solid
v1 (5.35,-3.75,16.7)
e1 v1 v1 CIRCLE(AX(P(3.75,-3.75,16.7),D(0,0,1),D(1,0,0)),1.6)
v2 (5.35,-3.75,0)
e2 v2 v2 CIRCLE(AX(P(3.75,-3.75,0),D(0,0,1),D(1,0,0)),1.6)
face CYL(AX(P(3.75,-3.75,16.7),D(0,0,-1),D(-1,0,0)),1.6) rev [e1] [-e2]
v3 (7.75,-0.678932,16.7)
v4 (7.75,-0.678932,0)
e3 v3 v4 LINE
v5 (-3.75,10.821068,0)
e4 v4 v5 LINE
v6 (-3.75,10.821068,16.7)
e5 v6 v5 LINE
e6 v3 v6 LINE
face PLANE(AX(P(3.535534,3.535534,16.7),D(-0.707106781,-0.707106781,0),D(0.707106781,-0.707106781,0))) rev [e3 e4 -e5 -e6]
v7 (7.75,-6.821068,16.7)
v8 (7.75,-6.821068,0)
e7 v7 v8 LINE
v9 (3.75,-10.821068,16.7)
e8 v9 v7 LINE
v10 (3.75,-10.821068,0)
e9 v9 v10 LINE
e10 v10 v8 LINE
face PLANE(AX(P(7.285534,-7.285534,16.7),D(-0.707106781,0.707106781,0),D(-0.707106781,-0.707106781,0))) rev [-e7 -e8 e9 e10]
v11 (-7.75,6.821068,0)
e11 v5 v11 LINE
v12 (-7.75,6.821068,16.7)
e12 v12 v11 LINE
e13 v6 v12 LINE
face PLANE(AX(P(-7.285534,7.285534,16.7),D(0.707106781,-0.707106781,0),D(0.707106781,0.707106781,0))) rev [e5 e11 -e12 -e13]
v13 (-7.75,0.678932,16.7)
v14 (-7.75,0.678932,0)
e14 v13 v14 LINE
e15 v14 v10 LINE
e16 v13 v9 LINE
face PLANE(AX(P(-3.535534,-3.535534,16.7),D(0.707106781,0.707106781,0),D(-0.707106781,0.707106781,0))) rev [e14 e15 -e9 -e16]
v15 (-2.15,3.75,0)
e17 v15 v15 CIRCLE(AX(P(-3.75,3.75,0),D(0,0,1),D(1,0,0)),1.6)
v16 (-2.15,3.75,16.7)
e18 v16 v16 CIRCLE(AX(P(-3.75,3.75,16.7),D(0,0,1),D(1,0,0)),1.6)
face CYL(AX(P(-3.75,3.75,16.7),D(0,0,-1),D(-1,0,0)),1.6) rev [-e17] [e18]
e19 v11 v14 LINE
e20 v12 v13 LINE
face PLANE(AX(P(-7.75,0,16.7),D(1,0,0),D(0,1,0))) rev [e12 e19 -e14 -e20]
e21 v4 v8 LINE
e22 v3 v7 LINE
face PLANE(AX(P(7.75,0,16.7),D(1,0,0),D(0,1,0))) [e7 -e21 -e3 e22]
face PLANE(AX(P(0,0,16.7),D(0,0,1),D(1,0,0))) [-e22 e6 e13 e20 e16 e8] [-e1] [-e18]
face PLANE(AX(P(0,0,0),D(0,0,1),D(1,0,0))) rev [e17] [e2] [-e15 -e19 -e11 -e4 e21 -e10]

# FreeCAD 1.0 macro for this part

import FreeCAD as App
import Part
import Sketcher
Q = App.Units.Quantity


def add_polygon(sketch, points):
    """Adds a closed chain of lines whose ends are joined by coincident constraints."""
    first, n = sketch.GeometryCount, len(points)
    for a, b in zip(points, points[1:] + points[:1]):
        sketch.addGeometry(Part.LineSegment(App.Vector(*a, 0), App.Vector(*b, 0)), False)
    for i in range(n):
        sketch.addConstraint(Sketcher.Constraint("Coincident", first + i, 2, first + (i + 1) % n, 1))

doc = App.newDocument("Part")
params = doc.addObject("Spreadsheet::Sheet", "Params")
for row, (alias, value) in enumerate([
    ("sketch1_diameter", "3.2 mm"),
    ("pad1_length", "16.7 mm"),
], start=1):
    params.set(f"A{row}", alias)
    params.set(f"B{row}", "=" + value)
    params.setAlias(f"B{row}", alias)

body = doc.addObject("PartDesign::Body", "Body")

# Sketch on XY plane
sketch1 = doc.addObject("Sketcher::SketchObject", "Sketch")
body.addObject(sketch1)
sketch1.AttachmentSupport = (doc.XY_Plane, [""])
sketch1.MapMode = "FlatFace"
add_polygon(sketch1, [(7.75, -0.678932), (-3.75, 10.821068), (-7.75, 6.821068), (-7.75, 0.678932), (3.75, -10.821068), (7.75, -6.821068)])  # lines 0-5
sketch1.addGeometry(Part.Circle(App.Vector(3.75, -3.75, 0), App.Vector(0, 0, 1), 1.6), False)  # 6
sketch1.addGeometry(Part.Circle(App.Vector(-3.75, 3.75, 0), App.Vector(0, 0, 1), 1.6), False)  # 7
sketch1.addConstraint([
    Sketcher.Constraint("Vertical", 2),
    Sketcher.Constraint("Vertical", 5),
    Sketcher.Constraint("Equal", 6, 7),
    Sketcher.Constraint("Symmetric", 6, 3, 7, 3, -1, 1),
    Sketcher.Constraint("Symmetric", 0, 2, 3, 2, -1, 1),
    Sketcher.Constraint("Symmetric", 1, 2, 4, 2, -1, 1),
    Sketcher.Constraint("Perpendicular", 0, 1),
    Sketcher.Constraint("Perpendicular", 1, 3),
    Sketcher.Constraint("Vertical", 7, 3, 0, 2),
    Sketcher.Constraint("Diameter", 6, 3.2),
    Sketcher.Constraint("Angle", 0, Q("135 deg")),
    Sketcher.Constraint("DistanceX", 1, 2, 7, 3, 4.0),
    Sketcher.Constraint("DistanceX", 7, 3, 6, 3, 7.5),
    Sketcher.Constraint("DistanceY", 6, 3, 7, 3, 7.5),
    Sketcher.Constraint("DistanceY", 2, 2, 2, 1, 6.142136),
])
sketch1.setExpression("Constraints[15]", "Params.sketch1_diameter")
pad1 = doc.addObject("PartDesign::Pad", "Pad")
body.addObject(pad1)
pad1.Profile = sketch1
pad1.setExpression("Length", "Params.pad1_length")

doc.recompute()
